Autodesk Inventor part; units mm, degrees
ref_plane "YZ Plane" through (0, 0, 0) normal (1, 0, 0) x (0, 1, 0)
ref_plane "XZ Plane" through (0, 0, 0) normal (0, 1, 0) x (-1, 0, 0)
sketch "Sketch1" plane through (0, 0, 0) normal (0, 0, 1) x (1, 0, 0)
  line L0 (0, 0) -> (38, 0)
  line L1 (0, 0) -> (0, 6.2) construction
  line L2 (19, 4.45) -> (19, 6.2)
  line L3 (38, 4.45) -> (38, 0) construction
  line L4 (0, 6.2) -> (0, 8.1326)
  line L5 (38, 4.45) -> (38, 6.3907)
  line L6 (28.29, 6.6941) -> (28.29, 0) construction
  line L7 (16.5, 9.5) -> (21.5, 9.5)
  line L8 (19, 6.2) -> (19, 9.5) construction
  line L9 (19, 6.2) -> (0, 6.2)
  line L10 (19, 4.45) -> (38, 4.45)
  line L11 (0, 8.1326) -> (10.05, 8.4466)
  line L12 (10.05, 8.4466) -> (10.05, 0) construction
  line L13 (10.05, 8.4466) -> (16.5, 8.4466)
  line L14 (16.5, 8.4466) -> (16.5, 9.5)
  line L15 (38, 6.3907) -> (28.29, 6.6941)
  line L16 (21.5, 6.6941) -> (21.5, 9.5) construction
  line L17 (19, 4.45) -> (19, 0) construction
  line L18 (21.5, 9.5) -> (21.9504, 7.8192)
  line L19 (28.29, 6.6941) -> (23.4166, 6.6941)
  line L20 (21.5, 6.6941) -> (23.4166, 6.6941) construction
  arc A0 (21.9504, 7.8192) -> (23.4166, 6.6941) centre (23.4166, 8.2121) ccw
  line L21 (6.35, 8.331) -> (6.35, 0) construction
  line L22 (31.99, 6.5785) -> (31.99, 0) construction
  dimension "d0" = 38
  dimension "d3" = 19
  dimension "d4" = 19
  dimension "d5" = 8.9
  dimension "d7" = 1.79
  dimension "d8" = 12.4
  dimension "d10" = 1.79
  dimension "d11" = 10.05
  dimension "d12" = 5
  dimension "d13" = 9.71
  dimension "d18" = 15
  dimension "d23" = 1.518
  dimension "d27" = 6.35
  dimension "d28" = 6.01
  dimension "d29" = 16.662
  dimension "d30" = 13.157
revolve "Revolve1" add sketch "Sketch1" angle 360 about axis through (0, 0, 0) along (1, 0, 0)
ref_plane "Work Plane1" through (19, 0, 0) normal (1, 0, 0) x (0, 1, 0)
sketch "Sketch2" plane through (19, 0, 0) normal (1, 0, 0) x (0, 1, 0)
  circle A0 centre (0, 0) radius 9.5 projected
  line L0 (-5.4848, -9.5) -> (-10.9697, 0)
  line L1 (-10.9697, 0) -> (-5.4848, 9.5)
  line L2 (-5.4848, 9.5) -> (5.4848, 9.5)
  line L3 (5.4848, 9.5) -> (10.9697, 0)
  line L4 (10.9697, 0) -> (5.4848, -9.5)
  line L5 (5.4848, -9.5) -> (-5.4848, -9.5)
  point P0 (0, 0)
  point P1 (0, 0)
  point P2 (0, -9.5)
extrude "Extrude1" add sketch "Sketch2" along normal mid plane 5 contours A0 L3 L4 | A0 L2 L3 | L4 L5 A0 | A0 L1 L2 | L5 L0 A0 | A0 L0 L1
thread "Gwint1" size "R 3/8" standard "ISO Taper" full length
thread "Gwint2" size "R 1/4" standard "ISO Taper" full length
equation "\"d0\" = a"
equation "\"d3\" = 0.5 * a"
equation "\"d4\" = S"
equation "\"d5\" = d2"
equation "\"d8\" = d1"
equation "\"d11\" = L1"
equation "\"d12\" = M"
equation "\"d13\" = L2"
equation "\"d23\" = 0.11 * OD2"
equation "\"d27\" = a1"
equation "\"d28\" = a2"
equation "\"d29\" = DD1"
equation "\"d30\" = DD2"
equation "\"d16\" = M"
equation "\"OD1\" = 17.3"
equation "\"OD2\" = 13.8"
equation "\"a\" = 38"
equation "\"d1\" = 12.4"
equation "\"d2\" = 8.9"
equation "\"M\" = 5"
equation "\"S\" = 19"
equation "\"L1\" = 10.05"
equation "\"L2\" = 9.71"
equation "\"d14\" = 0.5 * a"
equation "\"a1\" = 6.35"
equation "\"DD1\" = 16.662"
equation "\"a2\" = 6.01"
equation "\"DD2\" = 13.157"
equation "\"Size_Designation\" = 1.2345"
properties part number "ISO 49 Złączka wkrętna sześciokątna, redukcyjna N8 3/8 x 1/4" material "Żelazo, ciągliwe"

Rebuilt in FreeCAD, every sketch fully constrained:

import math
import FreeCAD as App
import Part
import Sketcher
from FreeCAD import Vector
Q = App.Units.Quantity

doc = App.newDocument("Part")
body = doc.addObject("PartDesign::Body", "Body")

# Sketch on XY plane
sketch1 = body.newObject("Sketcher::SketchObject", "Sketch")
sketch1.AttachmentSupport = (doc.getObject("XY_Plane"), [""])
sketch1.MapMode = "FlatFace"
sketch1.addGeometry([
    Part.LineSegment(Vector(19, 6.2, 0), Vector(19, 4.5, 0)),  # 0
    Part.LineSegment(Vector(19, 4.5, 0), Vector(38, 4.5, 0)),  # 1
    Part.LineSegment(Vector(38, 4.5, 0), Vector(38, 6.4, 0)),  # 2
    Part.LineSegment(Vector(38, 6.4, 0), Vector(28.3, 6.7, 0)),  # 3
    Part.LineSegment(Vector(28.3, 6.7, 0), Vector(23.4, 6.7, 0)),  # 4
    Part.ArcOfCircle(Part.Circle(Vector(23.4, 8.2, 0), Vector(0, 0, 1), 1.5), math.radians(-165), math.radians(-90)),  # 5
    Part.LineSegment(Vector(22, 7.8, 0), Vector(21.5, 9.5, 0)),  # 6
    Part.LineSegment(Vector(21.5, 9.5, 0), Vector(16.5, 9.5, 0)),  # 7
    Part.LineSegment(Vector(16.5, 9.5, 0), Vector(16.5, 8.4, 0)),  # 8
    Part.LineSegment(Vector(16.5, 8.4, 0), Vector(10.1, 8.4, 0)),  # 9
    Part.LineSegment(Vector(10.1, 8.4, 0), Vector(0, 8.1, 0)),  # 10
    Part.LineSegment(Vector(0, 8.1, 0), Vector(0, 6.2, 0)),  # 11
    Part.LineSegment(Vector(0, 6.2, 0), Vector(19, 6.2, 0)),  # 12
], False)
sketch1.addConstraint([
    Sketcher.Constraint("Coincident", 0, 2, 1, 1),
    Sketcher.Constraint("Coincident", 1, 2, 2, 1),
    Sketcher.Constraint("Coincident", 2, 2, 3, 1),
    Sketcher.Constraint("Coincident", 3, 2, 4, 1),
    Sketcher.Constraint("Tangent", 4, 2, 5, 2),
    Sketcher.Constraint("Tangent", 5, 1, 6, 1),
    Sketcher.Constraint("Coincident", 6, 2, 7, 1),
    Sketcher.Constraint("Coincident", 7, 2, 8, 1),
    Sketcher.Constraint("Coincident", 8, 2, 9, 1),
    Sketcher.Constraint("Coincident", 9, 2, 10, 1),
    Sketcher.Constraint("Coincident", 10, 2, 11, 1),
    Sketcher.Constraint("Coincident", 11, 2, 12, 1),
    Sketcher.Constraint("Coincident", 12, 2, 0, 1),
    Sketcher.Constraint("Vertical", 0),
    Sketcher.Constraint("Horizontal", 1),
    Sketcher.Constraint("Vertical", 2),
    Sketcher.Constraint("Horizontal", 4),
    Sketcher.Constraint("Horizontal", 7),
    Sketcher.Constraint("Vertical", 8),
    Sketcher.Constraint("Horizontal", 9),
    Sketcher.Constraint("Vertical", 11),
    Sketcher.Constraint("Horizontal", 12),
    Sketcher.Constraint("PointOnObject", 10, 2, -2),
    Sketcher.Constraint("Equal", 1, 12),
    Sketcher.Constraint("DistanceX", 1, 1, 1, 2, 19.0),
    Sketcher.Constraint("DistanceX", 7, 2, 7, 1, 5.0),
    Sketcher.Constraint("Radius", 5, 1.518),
    Sketcher.Constraint("DistanceX", -1, 1, 9, 2, 10.05),
    Sketcher.Constraint("Angle", 6, Q("105.001 deg")),
    Sketcher.Constraint("DistanceX", 3, 2, 2, 2, 9.71),
    Sketcher.Constraint("DistanceX", 9, 2, 9, 1, 6.45),
    Sketcher.Constraint("DistanceY", 0, 2, 0, 1, 1.75),
    Sketcher.Constraint("DistanceY", -1, 1, 6, 2, 9.5),
    Sketcher.Constraint("DistanceY", -1, 1, 11, 2, 6.2),
    Sketcher.Constraint("Angle", 3, Q("178.2103 deg")),
    Sketcher.Constraint("Angle", 10, Q("-178.2104 deg")),
    Sketcher.Constraint("Distance", 6, 1.74),
    Sketcher.Constraint("DistanceY", 8, 2, 8, 1, 1.0534),
])
revolution = body.newObject("PartDesign::Revolution", "Revolution")
revolution.Profile = sketch1
revolution.ReferenceAxis = (sketch1, ["H_Axis"])
revolution.Angle = 360

# Sketch on YZ plane
sketch2 = body.newObject("Sketcher::SketchObject", "Sketch001")
sketch2.AttachmentSupport = (doc.getObject("YZ_Plane"), [""])
sketch2.MapMode = "FlatFace"
sketch2.AttachmentOffset = App.Placement(Vector(0, 0, 19), App.Rotation())
sketch2.addGeometry([
    Part.ArcOfCircle(Part.Circle(Vector(0, 0, 0), Vector(0, 0, 1), 10), math.radians(-30), math.radians(30)),  # 0
    Part.LineSegment(Vector(8, -5, 0), Vector(11, 0, 0)),  # 1
    Part.LineSegment(Vector(11, 0, 0), Vector(8, 5, 0)),  # 2
    Part.ArcOfCircle(Part.Circle(Vector(0, 0, 0), Vector(0, 0, 1), 10), math.radians(30), math.radians(90)),  # 3
    Part.LineSegment(Vector(8, 5, 0), Vector(5, 10, 0)),  # 4
    Part.LineSegment(Vector(5, 10, 0), Vector(0, 10, 0)),  # 5
    Part.LineSegment(Vector(5, -10, 0), Vector(8, -5, 0)),  # 6
    Part.ArcOfCircle(Part.Circle(Vector(0, 0, 0), Vector(0, 0, 1), 10), math.radians(-90), math.radians(-30)),  # 7
    Part.LineSegment(Vector(0, -10, 0), Vector(5, -10, 0)),  # 8
    Part.ArcOfCircle(Part.Circle(Vector(0, 0, 0), Vector(0, 0, 1), 10), math.radians(90), math.radians(150)),  # 9
    Part.LineSegment(Vector(0, 10, 0), Vector(-5, 10, 0)),  # 10
    Part.LineSegment(Vector(-5, 10, 0), Vector(-8, 5, 0)),  # 11
    Part.LineSegment(Vector(-5, -10, 0), Vector(0, -10, 0)),  # 12
    Part.ArcOfCircle(Part.Circle(Vector(0, 0, 0), Vector(0, 0, 1), 10), math.radians(-150), math.radians(-90)),  # 13
    Part.LineSegment(Vector(-8, -5, 0), Vector(-5, -10, 0)),  # 14
    Part.ArcOfCircle(Part.Circle(Vector(0, 0, 0), Vector(0, 0, 1), 10), math.radians(150), math.radians(210)),  # 15
    Part.LineSegment(Vector(-8, 5, 0), Vector(-11, 0, 0)),  # 16
    Part.LineSegment(Vector(-11, 0, 0), Vector(-8, -5, 0)),  # 17
], False)
sketch2.addConstraint([
    Sketcher.Constraint("Tangent", 0, 1, 1, 1),
    Sketcher.Constraint("Coincident", 1, 2, 2, 1),
    Sketcher.Constraint("Tangent", 2, 2, 0, 2),
    Sketcher.Constraint("Tangent", 3, 1, 4, 1),
    Sketcher.Constraint("Coincident", 4, 2, 5, 1),
    Sketcher.Constraint("Tangent", 5, 2, 3, 2),
    Sketcher.Constraint("Tangent", 6, 2, 7, 2),
    Sketcher.Constraint("Tangent", 7, 1, 8, 1),
    Sketcher.Constraint("Coincident", 8, 2, 6, 1),
    Sketcher.Constraint("Tangent", 9, 1, 10, 1),
    Sketcher.Constraint("Coincident", 10, 2, 11, 1),
    Sketcher.Constraint("Tangent", 11, 2, 9, 2),
    Sketcher.Constraint("Tangent", 12, 2, 13, 2),
    Sketcher.Constraint("Tangent", 13, 1, 14, 1),
    Sketcher.Constraint("Coincident", 14, 2, 12, 1),
    Sketcher.Constraint("Tangent", 15, 1, 16, 1),
    Sketcher.Constraint("Coincident", 16, 2, 17, 1),
    Sketcher.Constraint("Tangent", 17, 2, 15, 2),
    Sketcher.Constraint("Horizontal", 5),
    Sketcher.Constraint("Horizontal", 8),
    Sketcher.Constraint("Horizontal", 10),
    Sketcher.Constraint("Horizontal", 12),
    Sketcher.Constraint("Coincident", 0, 3, -1, 1),
    Sketcher.Constraint("Coincident", 3, 3, -1, 1),
    Sketcher.Constraint("Coincident", 7, 3, -1, 1),
    Sketcher.Constraint("Coincident", 9, 3, -1, 1),
    Sketcher.Constraint("Coincident", 13, 3, -1, 1),
    Sketcher.Constraint("Coincident", 15, 3, -1, 1),
    Sketcher.Constraint("Coincident", 3, 1, 2, 2),
    Sketcher.Constraint("Coincident", 6, 2, 0, 1),
    Sketcher.Constraint("Coincident", 15, 1, 11, 2),
    Sketcher.Constraint("Coincident", 17, 2, 13, 1),
    Sketcher.Constraint("Equal", 7, 9),
    Sketcher.Constraint("Symmetric", 1, 2, 16, 2, -1, 1),
    Sketcher.Constraint("PointOnObject", 1, 2, -1),
    Sketcher.Constraint("Equal", 2, 4),
    Sketcher.Constraint("Radius", 0, 9.5),
])
pad1 = body.newObject("PartDesign::Pad", "Pad")
pad1.Profile = sketch2
pad1.Length = 5
pad1.Midplane = True

doc.recompute()
